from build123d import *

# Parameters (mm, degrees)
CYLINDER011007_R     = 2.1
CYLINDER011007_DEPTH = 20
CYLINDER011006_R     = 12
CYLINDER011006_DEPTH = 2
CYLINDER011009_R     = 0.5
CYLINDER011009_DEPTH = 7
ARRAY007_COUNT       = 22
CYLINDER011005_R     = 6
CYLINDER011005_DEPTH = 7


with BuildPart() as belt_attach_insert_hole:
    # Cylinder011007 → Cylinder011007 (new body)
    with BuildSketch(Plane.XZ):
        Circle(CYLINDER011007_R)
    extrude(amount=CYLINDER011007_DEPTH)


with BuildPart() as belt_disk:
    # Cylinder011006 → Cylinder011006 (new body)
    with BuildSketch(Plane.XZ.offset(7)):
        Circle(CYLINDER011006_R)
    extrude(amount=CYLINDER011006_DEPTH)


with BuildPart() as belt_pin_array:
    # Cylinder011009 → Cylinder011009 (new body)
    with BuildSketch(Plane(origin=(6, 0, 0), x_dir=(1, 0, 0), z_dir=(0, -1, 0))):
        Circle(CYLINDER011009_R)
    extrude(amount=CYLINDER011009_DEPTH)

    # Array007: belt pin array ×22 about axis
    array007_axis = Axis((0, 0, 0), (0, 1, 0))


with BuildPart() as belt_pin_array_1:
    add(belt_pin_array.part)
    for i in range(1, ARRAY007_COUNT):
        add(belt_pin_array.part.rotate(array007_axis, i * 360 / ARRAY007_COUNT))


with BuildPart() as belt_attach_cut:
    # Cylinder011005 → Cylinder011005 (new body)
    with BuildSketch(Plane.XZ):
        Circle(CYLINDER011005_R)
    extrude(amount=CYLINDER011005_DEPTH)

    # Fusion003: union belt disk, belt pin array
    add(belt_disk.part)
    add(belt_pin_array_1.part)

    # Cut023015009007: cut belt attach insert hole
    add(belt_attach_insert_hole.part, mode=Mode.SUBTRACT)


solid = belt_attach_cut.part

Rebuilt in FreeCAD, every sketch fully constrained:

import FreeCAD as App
import Part
import Sketcher
from FreeCAD import Vector
Q = App.Units.Quantity

doc = App.newDocument("Part")
body = doc.addObject("PartDesign::Body", "Body")

# Sketch on XZ plane
sketch1 = doc.addObject("Sketcher::SketchObject", "Sketch")
body.addObject(sketch1)
sketch1.AttachmentSupport = (doc.XZ_Plane, [""])
sketch1.MapMode = "FlatFace"
sketch1.addGeometry(Part.Circle(Vector(0, 0, 0), Vector(0, 0, 1), 2.1), False)
sketch1.addConstraint(Sketcher.Constraint("Coincident", 0, 3, -1, 1))
sketch1.addConstraint(Sketcher.Constraint("Diameter", 0, Q("4.2 mm")))
pad1 = doc.addObject("PartDesign::Pad", "Pad")
body.addObject(pad1)
pad1.Profile = sketch1
pad1.Length = 20
body2 = doc.addObject("PartDesign::Body", "Body001")

# Sketch on XZ plane
sketch2 = doc.addObject("Sketcher::SketchObject", "Sketch001")
body2.addObject(sketch2)
sketch2.AttachmentSupport = (doc.getObject("XZ_Plane001"), [""])
sketch2.MapMode = "FlatFace"
sketch2.AttachmentOffset = App.Placement(Vector(0, 0, 7), App.Rotation())
sketch2.addGeometry(Part.Circle(Vector(0, 0, 0), Vector(0, 0, 1), 12), False)
sketch2.addConstraint(Sketcher.Constraint("Coincident", 0, 3, -1, 1))
sketch2.addConstraint(Sketcher.Constraint("Diameter", 0, Q("24 mm")))
pad2 = doc.addObject("PartDesign::Pad", "Pad001")
body2.addObject(pad2)
pad2.Profile = sketch2
pad2.Length = 2
body3 = doc.addObject("PartDesign::Body", "Body002")

# Sketch on XZ plane
sketch3 = doc.addObject("Sketcher::SketchObject", "Sketch002")
body3.addObject(sketch3)
sketch3.AttachmentSupport = (doc.getObject("XZ_Plane002"), [""])
sketch3.MapMode = "FlatFace"
sketch3.addGeometry(Part.Circle(Vector(6, 0, 0), Vector(0, 0, 1), 0.5), False)
sketch3.addConstraint(Sketcher.Constraint("PointOnObject", 0, 3, -1))
sketch3.addConstraint(Sketcher.Constraint("Diameter", 0, Q("1 mm")))
sketch3.addConstraint(Sketcher.Constraint("DistanceX", -1, 1, 0, 3, Q("6 mm")))
pad3 = doc.addObject("PartDesign::Pad", "Pad002")
body3.addObject(pad3)
pad3.Profile = sketch3
pad3.Length = 7
body4 = doc.addObject("PartDesign::Body", "Body003")
body4.AllowCompound = True
doc.recompute()

body4.BaseFeature = body3
doc.recompute()

body5 = doc.addObject("PartDesign::Body", "Body004")
body5.BaseFeature = body3
body5.Placement = App.Placement(Vector(0, 0, 0), App.Rotation(Vector(0, 1, 0), 16.363636))
boolean = doc.addObject("PartDesign::Boolean", "Boolean")
body4.addObject(boolean)
boolean.Type = "Fuse"
boolean.addObjects([body5])
doc.recompute()

body6 = doc.addObject("PartDesign::Body", "Body005")
body6.BaseFeature = body3
body6.Placement = App.Placement(Vector(0, 0, 0), App.Rotation(Vector(0, 1, 0), 32.727273))
boolean2 = doc.addObject("PartDesign::Boolean", "Boolean001")
body4.addObject(boolean2)
boolean2.Type = "Fuse"
boolean2.addObjects([body6])
doc.recompute()

body7 = doc.addObject("PartDesign::Body", "Body006")
body7.BaseFeature = body3
body7.Placement = App.Placement(Vector(0, 0, 0), App.Rotation(Vector(0, 1, 0), 49.090909))
boolean3 = doc.addObject("PartDesign::Boolean", "Boolean002")
body4.addObject(boolean3)
boolean3.Type = "Fuse"
boolean3.addObjects([body7])
doc.recompute()

body8 = doc.addObject("PartDesign::Body", "Body007")
body8.BaseFeature = body3
body8.Placement = App.Placement(Vector(0, 0, 0), App.Rotation(Vector(0, 1, 0), 65.454545))
boolean4 = doc.addObject("PartDesign::Boolean", "Boolean003")
body4.addObject(boolean4)
boolean4.Type = "Fuse"
boolean4.addObjects([body8])
doc.recompute()

body9 = doc.addObject("PartDesign::Body", "Body008")
body9.BaseFeature = body3
body9.Placement = App.Placement(Vector(0, 0, 0), App.Rotation(Vector(0, 1, 0), 81.818182))
boolean5 = doc.addObject("PartDesign::Boolean", "Boolean004")
body4.addObject(boolean5)
boolean5.Type = "Fuse"
boolean5.addObjects([body9])
doc.recompute()

body10 = doc.addObject("PartDesign::Body", "Body009")
body10.BaseFeature = body3
body10.Placement = App.Placement(Vector(0, 0, 0), App.Rotation(Vector(0, 1, 0), 98.181818))
boolean6 = doc.addObject("PartDesign::Boolean", "Boolean005")
body4.addObject(boolean6)
boolean6.Type = "Fuse"
boolean6.addObjects([body10])
doc.recompute()

body11 = doc.addObject("PartDesign::Body", "Body010")
body11.BaseFeature = body3
body11.Placement = App.Placement(Vector(0, 0, 0), App.Rotation(Vector(0, 1, 0), 114.545455))
boolean7 = doc.addObject("PartDesign::Boolean", "Boolean006")
body4.addObject(boolean7)
boolean7.Type = "Fuse"
boolean7.addObjects([body11])
doc.recompute()

body12 = doc.addObject("PartDesign::Body", "Body011")
body12.BaseFeature = body3
body12.Placement = App.Placement(Vector(0, 0, 0), App.Rotation(Vector(0, 1, 0), 130.909091))
boolean8 = doc.addObject("PartDesign::Boolean", "Boolean007")
body4.addObject(boolean8)
boolean8.Type = "Fuse"
boolean8.addObjects([body12])
doc.recompute()

body13 = doc.addObject("PartDesign::Body", "Body012")
body13.BaseFeature = body3
body13.Placement = App.Placement(Vector(0, 0, 0), App.Rotation(Vector(0, 1, 0), 147.272727))
boolean9 = doc.addObject("PartDesign::Boolean", "Boolean008")
body4.addObject(boolean9)
boolean9.Type = "Fuse"
boolean9.addObjects([body13])
doc.recompute()

body14 = doc.addObject("PartDesign::Body", "Body013")
body14.BaseFeature = body3
body14.Placement = App.Placement(Vector(0, 0, 0), App.Rotation(Vector(0, 1, 0), 163.636364))
boolean10 = doc.addObject("PartDesign::Boolean", "Boolean009")
body4.addObject(boolean10)
boolean10.Type = "Fuse"
boolean10.addObjects([body14])
doc.recompute()

body15 = doc.addObject("PartDesign::Body", "Body014")
body15.BaseFeature = body3
body15.Placement = App.Placement(Vector(0, 0, 0), App.Rotation(Vector(0, 1, 0), 180))
boolean11 = doc.addObject("PartDesign::Boolean", "Boolean010")
body4.addObject(boolean11)
boolean11.Type = "Fuse"
boolean11.addObjects([body15])
doc.recompute()

body16 = doc.addObject("PartDesign::Body", "Body015")
body16.BaseFeature = body3
body16.Placement = App.Placement(Vector(0, 0, 0), App.Rotation(Vector(0, 1, 0), 196.363636))
boolean12 = doc.addObject("PartDesign::Boolean", "Boolean011")
body4.addObject(boolean12)
boolean12.Type = "Fuse"
boolean12.addObjects([body16])
doc.recompute()

body17 = doc.addObject("PartDesign::Body", "Body016")
body17.BaseFeature = body3
body17.Placement = App.Placement(Vector(0, 0, 0), App.Rotation(Vector(0, 1, 0), 212.727273))
boolean13 = doc.addObject("PartDesign::Boolean", "Boolean012")
body4.addObject(boolean13)
boolean13.Type = "Fuse"
boolean13.addObjects([body17])
doc.recompute()

body18 = doc.addObject("PartDesign::Body", "Body017")
body18.BaseFeature = body3
body18.Placement = App.Placement(Vector(0, 0, 0), App.Rotation(Vector(0, 1, 0), 229.090909))
boolean14 = doc.addObject("PartDesign::Boolean", "Boolean013")
body4.addObject(boolean14)
boolean14.Type = "Fuse"
boolean14.addObjects([body18])
doc.recompute()

body19 = doc.addObject("PartDesign::Body", "Body018")
body19.BaseFeature = body3
body19.Placement = App.Placement(Vector(0, 0, 0), App.Rotation(Vector(0, 1, 0), 245.454545))
boolean15 = doc.addObject("PartDesign::Boolean", "Boolean014")
body4.addObject(boolean15)
boolean15.Type = "Fuse"
boolean15.addObjects([body19])
doc.recompute()

body20 = doc.addObject("PartDesign::Body", "Body019")
body20.BaseFeature = body3
body20.Placement = App.Placement(Vector(0, 0, 0), App.Rotation(Vector(0, 1, 0), 261.818182))
boolean16 = doc.addObject("PartDesign::Boolean", "Boolean015")
body4.addObject(boolean16)
boolean16.Type = "Fuse"
boolean16.addObjects([body20])
doc.recompute()

body21 = doc.addObject("PartDesign::Body", "Body020")
body21.BaseFeature = body3
body21.Placement = App.Placement(Vector(0, 0, 0), App.Rotation(Vector(0, 1, 0), 278.181818))
boolean17 = doc.addObject("PartDesign::Boolean", "Boolean016")
body4.addObject(boolean17)
boolean17.Type = "Fuse"
boolean17.addObjects([body21])
doc.recompute()

body22 = doc.addObject("PartDesign::Body", "Body021")
body22.BaseFeature = body3
body22.Placement = App.Placement(Vector(0, 0, 0), App.Rotation(Vector(0, 1, 0), 294.545455))
boolean18 = doc.addObject("PartDesign::Boolean", "Boolean017")
body4.addObject(boolean18)
boolean18.Type = "Fuse"
boolean18.addObjects([body22])
doc.recompute()

body23 = doc.addObject("PartDesign::Body", "Body022")
body23.BaseFeature = body3
body23.Placement = App.Placement(Vector(0, 0, 0), App.Rotation(Vector(0, 1, 0), 310.909091))
boolean19 = doc.addObject("PartDesign::Boolean", "Boolean018")
body4.addObject(boolean19)
boolean19.Type = "Fuse"
boolean19.addObjects([body23])
doc.recompute()

body24 = doc.addObject("PartDesign::Body", "Body023")
body24.BaseFeature = body3
body24.Placement = App.Placement(Vector(0, 0, 0), App.Rotation(Vector(0, 1, 0), 327.272727))
boolean20 = doc.addObject("PartDesign::Boolean", "Boolean019")
body4.addObject(boolean20)
boolean20.Type = "Fuse"
boolean20.addObjects([body24])
doc.recompute()

body3.Placement = App.Placement(Vector(0, 0, 0), App.Rotation(Vector(0, 1, 0), 343.636364))
boolean21 = doc.addObject("PartDesign::Boolean", "Boolean020")
body4.addObject(boolean21)
boolean21.Type = "Fuse"
boolean21.addObjects([body3])
body25 = doc.addObject("PartDesign::Body", "Body024")

# Sketch on XZ plane
sketch4 = doc.addObject("Sketcher::SketchObject", "Sketch003")
body25.addObject(sketch4)
sketch4.AttachmentSupport = (doc.getObject("XZ_Plane024"), [""])
sketch4.MapMode = "FlatFace"
sketch4.addGeometry(Part.Circle(Vector(0, 0, 0), Vector(0, 0, 1), 6), False)
sketch4.addConstraint(Sketcher.Constraint("Coincident", 0, 3, -1, 1))
sketch4.addConstraint(Sketcher.Constraint("Diameter", 0, Q("12 mm")))
pad4 = doc.addObject("PartDesign::Pad", "Pad003")
body25.addObject(pad4)
pad4.Profile = sketch4
pad4.Length = 7
doc.recompute()

boolean22 = doc.addObject("PartDesign::Boolean", "Boolean021")
body25.addObject(boolean22)
boolean22.Type = "Fuse"
boolean22.addObjects([body2])
doc.recompute()

boolean23 = doc.addObject("PartDesign::Boolean", "Boolean022")
body25.addObject(boolean23)
boolean23.Type = "Fuse"
boolean23.addObjects([body4])
doc.recompute()

boolean24 = doc.addObject("PartDesign::Boolean", "Boolean023")
body25.addObject(boolean24)
boolean24.Type = "Cut"
boolean24.addObjects([body])

doc.recompute()
